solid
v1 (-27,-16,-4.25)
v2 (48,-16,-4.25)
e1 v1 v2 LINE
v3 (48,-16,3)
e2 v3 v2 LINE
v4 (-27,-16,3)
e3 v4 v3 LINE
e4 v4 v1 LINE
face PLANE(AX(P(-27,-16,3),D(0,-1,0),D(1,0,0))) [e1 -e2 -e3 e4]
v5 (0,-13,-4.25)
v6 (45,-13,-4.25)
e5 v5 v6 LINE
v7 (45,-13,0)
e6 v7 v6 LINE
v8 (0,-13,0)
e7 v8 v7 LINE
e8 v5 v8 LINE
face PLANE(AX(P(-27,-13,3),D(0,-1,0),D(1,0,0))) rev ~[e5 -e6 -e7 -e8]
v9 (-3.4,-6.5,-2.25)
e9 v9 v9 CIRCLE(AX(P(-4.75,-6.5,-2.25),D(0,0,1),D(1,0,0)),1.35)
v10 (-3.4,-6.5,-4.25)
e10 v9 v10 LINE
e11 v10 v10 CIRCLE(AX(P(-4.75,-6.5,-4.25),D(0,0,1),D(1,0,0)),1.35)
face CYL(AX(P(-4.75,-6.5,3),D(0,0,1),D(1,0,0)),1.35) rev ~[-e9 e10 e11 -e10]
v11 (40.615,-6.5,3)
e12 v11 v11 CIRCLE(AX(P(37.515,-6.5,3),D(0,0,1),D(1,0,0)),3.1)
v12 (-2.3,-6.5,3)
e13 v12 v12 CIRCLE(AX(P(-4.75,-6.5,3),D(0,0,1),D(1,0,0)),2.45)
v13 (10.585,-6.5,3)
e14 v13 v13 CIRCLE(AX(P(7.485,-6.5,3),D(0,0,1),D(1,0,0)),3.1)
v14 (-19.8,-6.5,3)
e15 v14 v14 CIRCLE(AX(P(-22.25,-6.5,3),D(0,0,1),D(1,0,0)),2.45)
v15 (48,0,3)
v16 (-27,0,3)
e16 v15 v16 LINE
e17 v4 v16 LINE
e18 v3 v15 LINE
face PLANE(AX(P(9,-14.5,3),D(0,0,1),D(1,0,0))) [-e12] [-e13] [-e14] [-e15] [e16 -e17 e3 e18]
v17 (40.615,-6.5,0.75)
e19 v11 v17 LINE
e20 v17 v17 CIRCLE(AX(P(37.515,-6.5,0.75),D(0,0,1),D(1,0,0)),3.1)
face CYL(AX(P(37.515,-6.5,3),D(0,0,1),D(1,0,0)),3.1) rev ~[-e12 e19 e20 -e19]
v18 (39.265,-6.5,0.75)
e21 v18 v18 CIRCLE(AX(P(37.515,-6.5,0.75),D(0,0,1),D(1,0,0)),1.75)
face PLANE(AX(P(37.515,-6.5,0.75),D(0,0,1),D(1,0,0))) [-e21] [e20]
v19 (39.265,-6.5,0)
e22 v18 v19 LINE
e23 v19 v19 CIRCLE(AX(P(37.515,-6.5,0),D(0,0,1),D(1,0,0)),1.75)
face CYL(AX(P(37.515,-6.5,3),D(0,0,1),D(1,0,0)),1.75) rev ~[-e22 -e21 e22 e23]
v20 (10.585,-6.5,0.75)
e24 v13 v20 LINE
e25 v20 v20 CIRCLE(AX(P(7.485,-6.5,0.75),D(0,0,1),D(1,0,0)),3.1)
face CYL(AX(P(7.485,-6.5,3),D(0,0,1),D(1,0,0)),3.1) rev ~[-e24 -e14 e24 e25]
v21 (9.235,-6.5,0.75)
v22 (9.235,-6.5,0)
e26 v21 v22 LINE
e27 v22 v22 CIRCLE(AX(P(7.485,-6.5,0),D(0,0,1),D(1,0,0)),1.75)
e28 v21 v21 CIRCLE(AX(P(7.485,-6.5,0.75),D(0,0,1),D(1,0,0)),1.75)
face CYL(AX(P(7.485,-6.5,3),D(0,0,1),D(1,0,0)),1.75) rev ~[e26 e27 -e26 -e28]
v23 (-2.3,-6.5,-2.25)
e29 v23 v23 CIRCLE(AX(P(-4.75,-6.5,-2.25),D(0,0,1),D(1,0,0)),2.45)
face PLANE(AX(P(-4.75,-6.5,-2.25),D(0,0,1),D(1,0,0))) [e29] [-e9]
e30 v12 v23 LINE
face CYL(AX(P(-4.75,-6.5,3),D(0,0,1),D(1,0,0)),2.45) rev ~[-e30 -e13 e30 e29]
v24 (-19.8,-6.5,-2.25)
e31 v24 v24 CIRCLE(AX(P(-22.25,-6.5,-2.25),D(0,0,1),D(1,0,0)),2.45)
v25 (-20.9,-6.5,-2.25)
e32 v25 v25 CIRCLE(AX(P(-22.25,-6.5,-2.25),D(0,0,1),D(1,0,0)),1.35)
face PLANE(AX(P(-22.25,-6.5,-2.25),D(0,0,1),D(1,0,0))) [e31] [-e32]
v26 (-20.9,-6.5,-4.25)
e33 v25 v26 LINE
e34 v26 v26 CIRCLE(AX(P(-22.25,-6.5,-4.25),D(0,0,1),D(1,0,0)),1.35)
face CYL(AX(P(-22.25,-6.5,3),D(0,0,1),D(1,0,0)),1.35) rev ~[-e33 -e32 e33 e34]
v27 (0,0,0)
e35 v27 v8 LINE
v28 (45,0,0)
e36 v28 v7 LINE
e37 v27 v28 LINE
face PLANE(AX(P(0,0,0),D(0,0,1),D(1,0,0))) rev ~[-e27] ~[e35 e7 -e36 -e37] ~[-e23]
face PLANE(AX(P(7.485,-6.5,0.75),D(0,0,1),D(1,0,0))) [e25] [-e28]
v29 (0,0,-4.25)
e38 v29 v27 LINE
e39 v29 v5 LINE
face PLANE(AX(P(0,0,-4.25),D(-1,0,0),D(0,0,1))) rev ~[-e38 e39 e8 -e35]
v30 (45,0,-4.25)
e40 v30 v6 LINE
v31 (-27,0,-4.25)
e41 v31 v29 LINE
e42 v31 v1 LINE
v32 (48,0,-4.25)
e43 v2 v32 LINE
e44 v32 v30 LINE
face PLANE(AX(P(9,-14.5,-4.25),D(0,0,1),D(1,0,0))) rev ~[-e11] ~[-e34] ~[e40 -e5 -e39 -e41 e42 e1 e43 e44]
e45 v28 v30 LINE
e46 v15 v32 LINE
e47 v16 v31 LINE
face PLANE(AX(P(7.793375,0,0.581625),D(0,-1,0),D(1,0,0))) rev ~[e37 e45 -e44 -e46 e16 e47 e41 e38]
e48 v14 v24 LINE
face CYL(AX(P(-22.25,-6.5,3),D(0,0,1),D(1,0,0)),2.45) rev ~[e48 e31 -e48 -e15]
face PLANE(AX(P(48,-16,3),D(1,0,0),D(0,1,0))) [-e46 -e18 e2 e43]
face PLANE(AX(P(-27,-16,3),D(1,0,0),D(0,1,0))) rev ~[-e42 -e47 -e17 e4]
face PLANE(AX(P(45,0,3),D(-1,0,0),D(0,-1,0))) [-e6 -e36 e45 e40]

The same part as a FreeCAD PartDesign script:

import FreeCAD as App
import Part
import Sketcher

V = App.Vector

doc = App.newDocument("Part")
body = doc.addObject("PartDesign::Body", "Body")

# Sketch on XZ plane
sketch1 = body.newObject("Sketcher::SketchObject", "Sketch")
sketch1.AttachmentSupport = (doc.getObject("XZ_Plane"), [""])
sketch1.MapMode = "FlatFace"
sketch1.addGeometry([
    Part.LineSegment(V(0, -4.25, 0), V(0, 0, 0)),  # 0
    Part.LineSegment(V(0, 0, 0), V(45, 0, 0)),  # 1
    Part.LineSegment(V(45, 0, 0), V(45, 3, 0)),  # 2
    Part.LineSegment(V(45, 3, 0), V(-27, 3, 0)),  # 3
    Part.LineSegment(V(-27, 3, 0), V(-27, -4.25, 0)),  # 4
    Part.LineSegment(V(-27, -4.25, 0), V(0, -4.25, 0)),  # 5
], False)
sketch1.addConstraint([
    Sketcher.Constraint("Coincident", 0, 2, 1, 1),
    Sketcher.Constraint("Coincident", 1, 2, 2, 1),
    Sketcher.Constraint("Coincident", 2, 2, 3, 1),
    Sketcher.Constraint("Coincident", 3, 2, 4, 1),
    Sketcher.Constraint("Coincident", 4, 2, 5, 1),
    Sketcher.Constraint("Coincident", 5, 2, 0, 1),
    Sketcher.Constraint("Vertical", 0),
    Sketcher.Constraint("Horizontal", 1),
    Sketcher.Constraint("Vertical", 2),
    Sketcher.Constraint("Horizontal", 3),
    Sketcher.Constraint("Vertical", 4),
    Sketcher.Constraint("Horizontal", 5),
    Sketcher.Constraint("Coincident", 0, 2, -1, 1),
    Sketcher.Constraint("DistanceX", 1, 1, 1, 2, 45.0),
    Sketcher.Constraint("DistanceX", 3, 2, 3, 1, 72.0),
    Sketcher.Constraint("DistanceY", 2, 1, 2, 2, 3.0),
    Sketcher.Constraint("DistanceY", 0, 1, 0, 2, 4.25),
])
pad1 = body.newObject("PartDesign::Pad", "Pad")
pad1.Profile = sketch1
pad1.Length = 13

# Sketch on XY plane
sketch2 = body.newObject("Sketcher::SketchObject", "Sketch001")
sketch2.AttachmentSupport = (doc.getObject("XY_Plane"), [""])
sketch2.MapMode = "FlatFace"
sketch2.AttachmentOffset = App.Placement(V(0, 0, 3), App.Rotation())
sketch2.addGeometry([
    Part.Circle(V(-4.75, -6.5, 0), V(0, 0, 1), 1.35),
    Part.Circle(V(-22.25, -6.5, 0), V(0, 0, 1), 1.35),
    Part.Circle(V(7.485, -6.5, 0), V(0, 0, 1), 1.75),
    Part.Circle(V(37.515, -6.5, 0), V(0, 0, 1), 1.75),
], False)
sketch2.addConstraint([
    Sketcher.Constraint("Equal", 0, 1),
    Sketcher.Constraint("Equal", 2, 3),
    Sketcher.Constraint("Horizontal", 0, 3, 1, 3),
    Sketcher.Constraint("Horizontal", 1, 3, 2, 3),
    Sketcher.Constraint("Horizontal", 2, 3, 3, 3),
    Sketcher.Constraint("Diameter", 0, 2.7),
    Sketcher.Constraint("Diameter", 2, 3.5),
    Sketcher.Constraint("DistanceY", 0, 3, -1, 1, 6.5),
    Sketcher.Constraint("DistanceX", 1, 3, 0, 3, 17.5),
    Sketcher.Constraint("DistanceX", 0, 3, -1, 1, 4.75),
    Sketcher.Constraint("DistanceX", 2, 3, 3, 3, 30.03),
    Sketcher.Constraint("DistanceX", -1, 1, 2, 3, 7.485),
])
pocket1 = body.newObject("PartDesign::Pocket", "Pocket")
pocket1.Profile = sketch2
pocket1.Type = "ThroughAll"

# Sketch on XY plane
sketch3 = body.newObject("Sketcher::SketchObject", "Sketch002")
sketch3.AttachmentSupport = (doc.getObject("XY_Plane"), [""])
sketch3.MapMode = "FlatFace"
sketch3.AttachmentOffset = App.Placement(V(0, 0, 3), App.Rotation())
sketch3.addGeometry([
    Part.Circle(V(-4.75, -6.5, 0), V(0, 0, 1), 2.45),
    Part.Circle(V(-4.75, -6.5, 0), V(0, 0, 1), 1.35),
    Part.Circle(V(-22.25, -6.5, 0), V(0, 0, 1), 2.45),
    Part.Circle(V(-22.25, -6.5, 0), V(0, 0, 1), 1.35),
], False)
sketch3.addConstraint([
    Sketcher.Constraint("Coincident", 1, 3, 0, 3),
    Sketcher.Constraint("Coincident", 3, 3, 2, 3),
    Sketcher.Constraint("Equal", 0, 2),
    Sketcher.Constraint("Equal", 1, 3),
    Sketcher.Constraint("Horizontal", 1, 3, 2, 3),
    Sketcher.Constraint("Diameter", 0, 4.9),
    Sketcher.Constraint("Diameter", 1, 2.7),
    Sketcher.Constraint("DistanceY", 0, 3, -1, 1, 6.5),
    Sketcher.Constraint("DistanceX", 2, 3, 0, 3, 17.5),
    Sketcher.Constraint("DistanceX", 0, 3, -1, 1, 4.75),
])
pocket2 = body.newObject("PartDesign::Pocket", "Pocket001")
pocket2.Profile = sketch3
pocket2.Length = 5.25

# Sketch on XY plane
sketch4 = body.newObject("Sketcher::SketchObject", "Sketch003")
sketch4.AttachmentSupport = (doc.getObject("XY_Plane"), [""])
sketch4.MapMode = "FlatFace"
sketch4.AttachmentOffset = App.Placement(V(0, 0, 3), App.Rotation())
sketch4.addGeometry([
    Part.Circle(V(7.485, -6.5, 0), V(0, 0, 1), 3.1),
    Part.Circle(V(7.485, -6.5, 0), V(0, 0, 1), 1.75),
    Part.Circle(V(37.515, -6.5, 0), V(0, 0, 1), 3.1),
    Part.Circle(V(37.515, -6.5, 0), V(0, 0, 1), 1.75),
], False)
sketch4.addConstraint([
    Sketcher.Constraint("Coincident", 1, 3, 0, 3),
    Sketcher.Constraint("Coincident", 3, 3, 2, 3),
    Sketcher.Constraint("Equal", 0, 2),
    Sketcher.Constraint("Equal", 1, 3),
    Sketcher.Constraint("Horizontal", 1, 3, 2, 3),
    Sketcher.Constraint("Diameter", 0, 6.2),
    Sketcher.Constraint("Diameter", 1, 3.5),
    Sketcher.Constraint("DistanceY", 0, 3, -1, 1, 6.5),
    Sketcher.Constraint("DistanceX", 0, 3, 2, 3, 30.03),
    Sketcher.Constraint("DistanceX", -1, 1, 0, 3, 7.485),
])
pocket3 = body.newObject("PartDesign::Pocket", "Pocket002")
pocket3.Profile = sketch4
pocket3.Length = 2.25

# Sketch on XY plane
sketch5 = body.newObject("Sketcher::SketchObject", "Sketch004")
sketch5.AttachmentSupport = (doc.getObject("XY_Plane"), [""])
sketch5.MapMode = "FlatFace"
sketch5.AttachmentOffset = App.Placement(V(0, 0, 3), App.Rotation())
sketch5.addGeometry([
    Part.LineSegment(V(-27, -13, 0), V(-27, -16, 0)),  # 0
    Part.LineSegment(V(-27, -16, 0), V(48, -16, 0)),  # 1
    Part.LineSegment(V(48, -16, 0), V(48, 0, 0)),  # 2
    Part.LineSegment(V(48, 0, 0), V(45, 0, 0)),  # 3
    Part.LineSegment(V(45, 0, 0), V(45, -13, 0)),  # 4
    Part.LineSegment(V(45, -13, 0), V(-27, -13, 0)),  # 5
], False)
sketch5.addConstraint([
    Sketcher.Constraint("Coincident", 0, 2, 1, 1),
    Sketcher.Constraint("Coincident", 1, 2, 2, 1),
    Sketcher.Constraint("Coincident", 2, 2, 3, 1),
    Sketcher.Constraint("Coincident", 3, 2, 4, 1),
    Sketcher.Constraint("Coincident", 4, 2, 5, 1),
    Sketcher.Constraint("Coincident", 5, 2, 0, 1),
    Sketcher.Constraint("Vertical", 0),
    Sketcher.Constraint("Horizontal", 1),
    Sketcher.Constraint("Vertical", 2),
    Sketcher.Constraint("Horizontal", 3),
    Sketcher.Constraint("Vertical", 4),
    Sketcher.Constraint("Horizontal", 5),
    Sketcher.Constraint("PointOnObject", 2, 2, -1),
    Sketcher.Constraint("Equal", 3, 0),
    Sketcher.Constraint("DistanceX", 1, 1, 1, 2, 75.0),
    Sketcher.Constraint("DistanceX", 3, 2, 3, 1, 3.0),
    Sketcher.Constraint("DistanceY", 2, 1, 2, 2, 16.0),
    Sketcher.Constraint("DistanceX", 0, 2, -1, 1, 27.0),
])
pad2 = body.newObject("PartDesign::Pad", "Pad001")
pad2.Profile = sketch5
pad2.Length = 7.25
pad2.Reversed = True

doc.recompute()
